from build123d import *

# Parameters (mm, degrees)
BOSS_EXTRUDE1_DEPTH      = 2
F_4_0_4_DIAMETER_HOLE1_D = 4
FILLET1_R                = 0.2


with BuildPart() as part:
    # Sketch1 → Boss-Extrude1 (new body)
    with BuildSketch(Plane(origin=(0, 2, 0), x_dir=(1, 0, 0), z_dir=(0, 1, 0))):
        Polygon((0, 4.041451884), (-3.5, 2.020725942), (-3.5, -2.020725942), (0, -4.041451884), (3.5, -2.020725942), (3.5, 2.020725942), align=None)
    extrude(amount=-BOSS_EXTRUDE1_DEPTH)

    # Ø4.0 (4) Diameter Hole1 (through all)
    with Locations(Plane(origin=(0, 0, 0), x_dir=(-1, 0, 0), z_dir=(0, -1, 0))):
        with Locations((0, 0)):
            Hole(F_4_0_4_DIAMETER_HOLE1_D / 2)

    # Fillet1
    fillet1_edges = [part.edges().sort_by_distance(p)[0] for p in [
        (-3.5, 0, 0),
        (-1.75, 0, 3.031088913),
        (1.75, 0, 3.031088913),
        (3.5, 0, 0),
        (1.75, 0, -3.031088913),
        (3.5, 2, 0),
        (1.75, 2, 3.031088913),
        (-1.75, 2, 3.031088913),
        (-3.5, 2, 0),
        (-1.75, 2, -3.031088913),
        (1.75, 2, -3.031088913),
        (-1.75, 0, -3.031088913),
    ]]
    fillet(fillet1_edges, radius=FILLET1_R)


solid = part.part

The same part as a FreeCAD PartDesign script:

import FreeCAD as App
import Part
import Sketcher
from FreeCAD import Vector
Q = App.Units.Quantity


def edges_at(feature, points):
    """Names of the edges that pass closest to the given points."""
    edges = feature.Shape.Edges
    near = lambda p: min(range(len(edges)), key=lambda i: edges[i].distToShape(Part.Vertex(*p))[0])
    return sorted({f"Edge{near(p) + 1}" for p in points})


def add_polygon(sketch, points):
    """Adds a closed chain of lines whose ends are joined by coincident constraints."""
    first, n = sketch.GeometryCount, len(points)
    for a, b in zip(points, points[1:] + points[:1]):
        sketch.addGeometry(Part.LineSegment(App.Vector(*a, 0), App.Vector(*b, 0)), False)
    for i in range(n):
        sketch.addConstraint(Sketcher.Constraint("Coincident", first + i, 2, first + (i + 1) % n, 1))

doc = App.newDocument("Part")
body = doc.addObject("PartDesign::Body", "Body")

# Sketch on XZ plane
sketch1 = body.newObject("Sketcher::SketchObject", "Sketch")
sketch1.AttachmentSupport = (doc.getObject("XZ_Plane"), [""])
sketch1.MapMode = "FlatFace"
sketch1.AttachmentOffset = App.Placement(Vector(0, 0, -2), App.Rotation())
add_polygon(sketch1, [(0, -4), (-3.5, -2), (-3.5, 2), (0, 4), (3.5, 2), (3.5, -2)])  # lines 0-5
sketch1.addConstraint(Sketcher.Constraint("Vertical", 1))
sketch1.addConstraint(Sketcher.Constraint("Vertical", 4))
sketch1.addConstraint(Sketcher.Constraint("Symmetric", 0, 2, 3, 2, -1, 1))
sketch1.addConstraint(Sketcher.Constraint("Symmetric", 2, 2, 5, 2, -1, 1))
sketch1.addConstraint(Sketcher.Constraint("PointOnObject", 2, 2, -2))
sketch1.addConstraint(Sketcher.Constraint("Parallel", 2, 5))
sketch1.addConstraint(Sketcher.Constraint("Horizontal", 1, 2, 3, 2))
sketch1.addConstraint(Sketcher.Constraint("Angle", 0, Q("150 deg")))
sketch1.addConstraint(Sketcher.Constraint("DistanceX", 1, 2, 3, 2, 7.0))
sketch1.addConstraint(Sketcher.Constraint("DistanceY", 1, 1, 1, 2, 4.041452))
pad1 = body.newObject("PartDesign::Pad", "Pad")
pad1.Profile = sketch1
pad1.Length = 2

# Sketch on XZ plane
sketch2 = body.newObject("Sketcher::SketchObject", "Sketch001")
sketch2.AttachmentSupport = (doc.getObject("XZ_Plane"), [""])
sketch2.MapMode = "FlatFace"
sketch2.addGeometry(Part.Circle(Vector(0, 0, 0), Vector(0, 0, 1), 2), False)
sketch2.addConstraint(Sketcher.Constraint("Coincident", 0, 3, -1, 1))
sketch2.addConstraint(Sketcher.Constraint("Diameter", 0, 4.0))
doc.recompute()
hole = body.newObject("PartDesign::Hole", "Hole")
hole.Profile = sketch2
hole.ThreadType = "None"
hole.Diameter = 4
hole.DepthType = "ThroughAll"
doc.recompute()

fillet = body.newObject("PartDesign::Fillet", "Fillet")
fillet.Base = (hole, edges_at(hole, [
    (-3.5, 0, 0),
    (-1.75, 0, 3.031),
    (1.75, 0, 3.031),
    (3.5, 0, 0),
    (1.75, 0, -3.031),
    (3.5, 2, 0),
    (1.75, 2, 3.031),
    (-1.75, 2, 3.031),
    (-3.5, 2, 0),
    (-1.75, 2, -3.031),
    (1.75, 2, -3.031),
    (-1.75, 0, -3.031),
]))
fillet.Radius = 0.2

doc.recompute()
